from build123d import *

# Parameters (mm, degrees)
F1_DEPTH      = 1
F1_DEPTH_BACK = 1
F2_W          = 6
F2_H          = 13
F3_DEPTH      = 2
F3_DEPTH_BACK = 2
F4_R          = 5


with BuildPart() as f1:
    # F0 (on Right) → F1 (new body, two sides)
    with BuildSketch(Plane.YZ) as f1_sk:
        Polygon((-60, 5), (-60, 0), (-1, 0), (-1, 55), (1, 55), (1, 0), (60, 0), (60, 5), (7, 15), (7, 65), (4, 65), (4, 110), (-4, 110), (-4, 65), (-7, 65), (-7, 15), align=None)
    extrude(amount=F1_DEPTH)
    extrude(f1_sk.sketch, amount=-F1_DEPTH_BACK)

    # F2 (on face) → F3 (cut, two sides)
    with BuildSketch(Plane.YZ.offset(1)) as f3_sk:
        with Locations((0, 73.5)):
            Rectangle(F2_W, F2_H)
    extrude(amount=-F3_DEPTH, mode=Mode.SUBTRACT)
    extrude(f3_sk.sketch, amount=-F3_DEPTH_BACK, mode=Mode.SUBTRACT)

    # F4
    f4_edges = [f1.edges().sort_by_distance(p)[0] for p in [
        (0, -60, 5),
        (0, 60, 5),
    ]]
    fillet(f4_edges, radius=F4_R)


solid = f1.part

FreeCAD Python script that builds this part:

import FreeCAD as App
import Part
import Sketcher

V = App.Vector


def edges_at(feature, points):
    """Names of the edges that pass closest to the given points."""
    edges = feature.Shape.Edges
    near = lambda p: min(range(len(edges)), key=lambda i: edges[i].distToShape(Part.Vertex(*p))[0])
    return sorted({f"Edge{near(p) + 1}" for p in points})


def add_polygon(sketch, points):
    """Adds a closed chain of lines whose ends are joined by coincident constraints."""
    first, n = sketch.GeometryCount, len(points)
    for a, b in zip(points, points[1:] + points[:1]):
        sketch.addGeometry(Part.LineSegment(App.Vector(*a, 0), App.Vector(*b, 0)), False)
    for i in range(n):
        sketch.addConstraint(Sketcher.Constraint("Coincident", first + i, 2, first + (i + 1) % n, 1))

doc = App.newDocument("Part")
params = doc.addObject("Spreadsheet::Sheet", "Params")
for row, (alias, value) in enumerate([
    ("sketch1_width", "59 mm"),
    ("sketch1_width2", "2 mm"),
    ("sketch1_width3", "3 mm"),
    ("sketch1_width4", "8 mm"),
    ("sketch1_height", "5 mm"),
    ("pad1_length", "1 mm"),
    ("pad1_length2", "1 mm"),
    ("sketch2_width", "6 mm"),
    ("sketch2_height", "13 mm"),
    ("pocket1_length", "2 mm"),
    ("pocket2_length", "2 mm"),
    ("fillet_radius", "5 mm"),
], start=1):
    params.set(f"A{row}", alias)
    params.set(f"B{row}", "=" + value)
    params.setAlias(f"B{row}", alias)

body = doc.addObject("PartDesign::Body", "Body")

sketch1 = body.newObject("Sketcher::SketchObject", "Sketch")
sketch1.AttachmentSupport = (doc.getObject("YZ_Plane"), [""])
sketch1.MapMode = "FlatFace"
add_polygon(sketch1, [(-60, 5), (-60, 0), (-1, 0), (-1, 55), (1, 55), (1, 0), (60, 0), (60, 5), (7, 15), (7, 65), (4, 65), (4, 110), (-4, 110), (-4, 65), (-7, 65), (-7, 15)])
sketch1.addConstraint(Sketcher.Constraint("Vertical", 0))
sketch1.addConstraint(Sketcher.Constraint("Horizontal", 1))
sketch1.addConstraint(Sketcher.Constraint("Vertical", 2))
sketch1.addConstraint(Sketcher.Constraint("Horizontal", 3))
sketch1.addConstraint(Sketcher.Constraint("Vertical", 4))
sketch1.addConstraint(Sketcher.Constraint("Horizontal", 5))
sketch1.addConstraint(Sketcher.Constraint("Vertical", 6))
sketch1.addConstraint(Sketcher.Constraint("Vertical", 8))
sketch1.addConstraint(Sketcher.Constraint("Horizontal", 9))
sketch1.addConstraint(Sketcher.Constraint("Vertical", 10))
sketch1.addConstraint(Sketcher.Constraint("Horizontal", 11))
sketch1.addConstraint(Sketcher.Constraint("Vertical", 12))
sketch1.addConstraint(Sketcher.Constraint("Horizontal", 13))
sketch1.addConstraint(Sketcher.Constraint("Vertical", 14))
sketch1.addConstraint(Sketcher.Constraint("Symmetric", 1, 2, 4, 2, -1, 1))
sketch1.addConstraint(Sketcher.Constraint("Symmetric", 0, 2, 5, 2, -2))
sketch1.addConstraint(Sketcher.Constraint("Symmetric", 9, 2, 12, 2, -2))
sketch1.addConstraint(Sketcher.Constraint("Symmetric", 7, 2, 14, 2, -2))
sketch1.addConstraint(Sketcher.Constraint("Horizontal", 6, 2, 15, 2))
sketch1.addConstraint(Sketcher.Constraint("DistanceX", 1, 1, 1, 2, 59.0))
sketch1.addConstraint(Sketcher.Constraint("DistanceX", 3, 1, 3, 2, 2.0))
sketch1.addConstraint(Sketcher.Constraint("DistanceX", 9, 2, 9, 1, 3.0))
sketch1.addConstraint(Sketcher.Constraint("DistanceX", 11, 2, 11, 1, 8.0))
sketch1.addConstraint(Sketcher.Constraint("DistanceY", 0, 2, 0, 1, 5.0))
sketch1.addConstraint(Sketcher.Constraint("DistanceY", 2, 1, 2, 2, 55.0))
sketch1.addConstraint(Sketcher.Constraint("DistanceY", 8, 1, 8, 2, 50.0))
sketch1.addConstraint(Sketcher.Constraint("DistanceY", 10, 1, 10, 2, 45.0))
sketch1.addConstraint(Sketcher.Constraint("DistanceY", -1, 1, 7, 2, 15.0))
sketch1.setExpression("Constraints[35]", "Params.sketch1_width")
sketch1.setExpression("Constraints[36]", "Params.sketch1_width2")
sketch1.setExpression("Constraints[37]", "Params.sketch1_width3")
sketch1.setExpression("Constraints[38]", "Params.sketch1_width4")
sketch1.setExpression("Constraints[39]", "Params.sketch1_height")
pad1 = body.newObject("PartDesign::Pad", "Pad")
pad1.Profile = sketch1
pad1.Type = "TwoLengths"
pad1.setExpression("Length", "Params.pad1_length")
pad1.setExpression("Length2", "Params.pad1_length2")

sketch2 = body.newObject("Sketcher::SketchObject", "Sketch001")
sketch2.AttachmentSupport = (doc.getObject("YZ_Plane"), [""])
sketch2.MapMode = "FlatFace"
sketch2.AttachmentOffset = App.Placement(V(0, 0, 1), App.Rotation())
add_polygon(sketch2, [(-3, 80), (-3, 67), (3, 67), (3, 80)])
sketch2.addConstraint(Sketcher.Constraint("Vertical", 0))
sketch2.addConstraint(Sketcher.Constraint("Horizontal", 1))
sketch2.addConstraint(Sketcher.Constraint("Vertical", 2))
sketch2.addConstraint(Sketcher.Constraint("Horizontal", 3))
sketch2.addConstraint(Sketcher.Constraint("DistanceX", 1, 1, 1, 2, 6.0))
sketch2.addConstraint(Sketcher.Constraint("DistanceY", 0, 2, 0, 1, 13.0))
sketch2.addConstraint(Sketcher.Constraint("DistanceX", 0, 2, -1, 1, 3.0))
sketch2.addConstraint(Sketcher.Constraint("DistanceY", -1, 1, 0, 2, 67.0))
sketch2.setExpression("Constraints[8]", "Params.sketch2_width")
sketch2.setExpression("Constraints[9]", "Params.sketch2_height")
pocket1 = body.newObject("PartDesign::Pocket", "Pocket")
pocket1.Profile = sketch2
pocket1.setExpression("Length", "Params.pocket1_length")
pocket2 = body.newObject("PartDesign::Pocket", "Pocket001")
pocket2.Profile = sketch2
pocket2.setExpression("Length", "Params.pocket2_length")
doc.recompute()

fillet = body.newObject("PartDesign::Fillet", "Fillet")
fillet.Base = (pocket2, edges_at(pocket2, [(0, -60, 5), (0, 60, 5)]))
fillet.setExpression("Radius", "Params.fillet_radius")

doc.recompute()
